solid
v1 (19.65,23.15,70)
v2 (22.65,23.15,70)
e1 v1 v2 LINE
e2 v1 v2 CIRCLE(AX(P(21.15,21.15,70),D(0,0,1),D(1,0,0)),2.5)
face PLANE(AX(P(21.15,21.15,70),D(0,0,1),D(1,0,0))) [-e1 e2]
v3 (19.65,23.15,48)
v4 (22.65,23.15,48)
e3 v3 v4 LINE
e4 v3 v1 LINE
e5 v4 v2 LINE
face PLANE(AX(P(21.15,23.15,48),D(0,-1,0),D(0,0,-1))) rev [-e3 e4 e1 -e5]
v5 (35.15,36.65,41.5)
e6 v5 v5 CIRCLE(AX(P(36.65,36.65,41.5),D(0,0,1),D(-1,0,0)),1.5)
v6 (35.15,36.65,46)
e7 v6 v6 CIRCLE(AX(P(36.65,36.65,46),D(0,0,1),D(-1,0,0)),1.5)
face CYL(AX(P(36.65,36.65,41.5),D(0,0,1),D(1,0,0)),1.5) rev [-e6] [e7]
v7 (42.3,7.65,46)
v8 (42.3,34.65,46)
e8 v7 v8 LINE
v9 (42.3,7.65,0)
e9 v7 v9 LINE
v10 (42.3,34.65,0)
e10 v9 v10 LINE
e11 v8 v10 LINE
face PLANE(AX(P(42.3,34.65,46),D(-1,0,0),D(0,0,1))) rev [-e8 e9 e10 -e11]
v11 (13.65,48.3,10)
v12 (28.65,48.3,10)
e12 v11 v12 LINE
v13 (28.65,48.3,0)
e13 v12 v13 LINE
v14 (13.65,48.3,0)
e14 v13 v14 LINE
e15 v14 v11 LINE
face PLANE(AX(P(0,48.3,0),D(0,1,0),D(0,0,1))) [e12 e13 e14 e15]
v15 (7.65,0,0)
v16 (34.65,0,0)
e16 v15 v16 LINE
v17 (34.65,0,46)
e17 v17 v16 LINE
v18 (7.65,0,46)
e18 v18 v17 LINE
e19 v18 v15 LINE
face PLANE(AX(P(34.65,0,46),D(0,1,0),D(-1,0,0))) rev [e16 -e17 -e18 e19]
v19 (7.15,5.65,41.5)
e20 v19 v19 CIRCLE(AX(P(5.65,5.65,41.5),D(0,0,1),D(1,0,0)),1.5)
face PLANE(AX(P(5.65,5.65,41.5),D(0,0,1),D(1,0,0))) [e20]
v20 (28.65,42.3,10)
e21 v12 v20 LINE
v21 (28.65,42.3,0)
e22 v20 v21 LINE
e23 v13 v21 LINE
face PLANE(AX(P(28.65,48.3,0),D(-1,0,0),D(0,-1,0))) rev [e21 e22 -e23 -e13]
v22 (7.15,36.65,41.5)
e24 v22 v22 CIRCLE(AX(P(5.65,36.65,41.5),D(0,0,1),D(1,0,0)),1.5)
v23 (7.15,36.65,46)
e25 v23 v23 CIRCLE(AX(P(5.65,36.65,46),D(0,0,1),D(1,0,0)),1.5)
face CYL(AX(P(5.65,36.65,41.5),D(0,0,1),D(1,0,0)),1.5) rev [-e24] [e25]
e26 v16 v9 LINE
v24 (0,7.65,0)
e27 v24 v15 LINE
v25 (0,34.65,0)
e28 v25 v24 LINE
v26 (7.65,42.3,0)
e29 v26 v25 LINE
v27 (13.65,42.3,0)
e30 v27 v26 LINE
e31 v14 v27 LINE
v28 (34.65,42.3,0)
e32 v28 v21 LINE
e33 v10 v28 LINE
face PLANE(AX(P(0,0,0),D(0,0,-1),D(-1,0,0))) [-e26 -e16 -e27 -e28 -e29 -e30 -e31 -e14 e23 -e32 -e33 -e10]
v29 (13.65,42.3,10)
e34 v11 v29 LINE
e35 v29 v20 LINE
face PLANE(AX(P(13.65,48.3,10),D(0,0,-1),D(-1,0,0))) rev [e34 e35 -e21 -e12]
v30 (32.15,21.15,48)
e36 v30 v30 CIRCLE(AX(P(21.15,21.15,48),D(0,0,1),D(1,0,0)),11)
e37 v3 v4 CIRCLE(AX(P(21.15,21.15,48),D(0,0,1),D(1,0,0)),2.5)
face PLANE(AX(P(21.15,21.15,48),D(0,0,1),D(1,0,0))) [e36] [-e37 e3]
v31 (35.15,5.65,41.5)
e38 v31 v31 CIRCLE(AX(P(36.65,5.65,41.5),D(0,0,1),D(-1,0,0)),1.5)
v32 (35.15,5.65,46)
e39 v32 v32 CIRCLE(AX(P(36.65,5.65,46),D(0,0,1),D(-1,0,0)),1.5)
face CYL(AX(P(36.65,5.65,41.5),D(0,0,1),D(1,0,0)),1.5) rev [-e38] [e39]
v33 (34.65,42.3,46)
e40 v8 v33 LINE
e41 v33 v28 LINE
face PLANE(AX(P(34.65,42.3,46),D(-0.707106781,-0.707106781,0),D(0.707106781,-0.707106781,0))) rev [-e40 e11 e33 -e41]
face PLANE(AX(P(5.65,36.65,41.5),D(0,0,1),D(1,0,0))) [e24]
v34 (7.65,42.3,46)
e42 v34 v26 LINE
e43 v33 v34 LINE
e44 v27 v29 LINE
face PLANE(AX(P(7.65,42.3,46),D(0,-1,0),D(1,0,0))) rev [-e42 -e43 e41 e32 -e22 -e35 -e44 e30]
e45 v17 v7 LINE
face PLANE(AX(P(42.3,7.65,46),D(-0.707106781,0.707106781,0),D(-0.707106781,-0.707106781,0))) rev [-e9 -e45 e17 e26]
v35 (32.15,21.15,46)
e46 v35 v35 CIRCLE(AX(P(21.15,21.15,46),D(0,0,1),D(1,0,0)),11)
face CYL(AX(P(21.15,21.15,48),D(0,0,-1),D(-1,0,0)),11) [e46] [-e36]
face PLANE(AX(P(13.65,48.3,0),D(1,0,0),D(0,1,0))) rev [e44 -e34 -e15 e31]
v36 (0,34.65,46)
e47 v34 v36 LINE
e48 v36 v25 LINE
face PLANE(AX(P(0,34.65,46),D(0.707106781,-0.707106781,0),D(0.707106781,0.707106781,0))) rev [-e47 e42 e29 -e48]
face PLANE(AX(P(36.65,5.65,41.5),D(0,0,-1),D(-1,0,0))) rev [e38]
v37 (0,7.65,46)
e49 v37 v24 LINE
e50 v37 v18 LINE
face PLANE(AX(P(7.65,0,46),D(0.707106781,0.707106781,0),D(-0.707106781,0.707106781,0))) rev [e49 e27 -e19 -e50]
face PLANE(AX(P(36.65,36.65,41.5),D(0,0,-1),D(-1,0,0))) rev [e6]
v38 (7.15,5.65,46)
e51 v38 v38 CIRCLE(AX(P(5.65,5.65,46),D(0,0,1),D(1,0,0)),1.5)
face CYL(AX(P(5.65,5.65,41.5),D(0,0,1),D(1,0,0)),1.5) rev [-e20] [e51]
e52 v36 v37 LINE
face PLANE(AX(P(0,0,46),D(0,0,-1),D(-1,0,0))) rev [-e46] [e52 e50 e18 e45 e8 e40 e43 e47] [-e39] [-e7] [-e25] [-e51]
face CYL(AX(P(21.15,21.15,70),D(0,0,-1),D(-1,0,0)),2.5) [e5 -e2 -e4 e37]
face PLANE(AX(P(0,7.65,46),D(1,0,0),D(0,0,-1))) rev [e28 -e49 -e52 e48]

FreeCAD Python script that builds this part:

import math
import FreeCAD as App
import Part
import Sketcher

doc = App.newDocument("Part")
body = doc.addObject("PartDesign::Body", "Body")

sketch1 = doc.addObject("Sketcher::SketchObject", "Sketch")
body.addObject(sketch1)
sketch1.AttachmentSupport = (doc.XY_Plane, [""])
sketch1.MapMode = "FlatFace"
sketch1.addGeometry([
    Part.LineSegment(App.Vector(0, 8, 0), App.Vector(8, 0, 0)),
    Part.LineSegment(App.Vector(8, 0, 0), App.Vector(35, 0, 0)),
    Part.LineSegment(App.Vector(35, 0, 0), App.Vector(42, 8, 0)),
    Part.LineSegment(App.Vector(42, 8, 0), App.Vector(42, 35, 0)),
    Part.LineSegment(App.Vector(42, 35, 0), App.Vector(35, 42, 0)),
    Part.LineSegment(App.Vector(35, 42, 0), App.Vector(8, 42, 0)),
    Part.LineSegment(App.Vector(8, 42, 0), App.Vector(0, 35, 0)),
    Part.LineSegment(App.Vector(0, 35, 0), App.Vector(0, 8, 0)),
], False)
sketch1.addConstraint([
    Sketcher.Constraint("Coincident", 0, 2, 1, 1),
    Sketcher.Constraint("Coincident", 1, 2, 2, 1),
    Sketcher.Constraint("Coincident", 2, 2, 3, 1),
    Sketcher.Constraint("Coincident", 3, 2, 4, 1),
    Sketcher.Constraint("Coincident", 4, 2, 5, 1),
    Sketcher.Constraint("Coincident", 5, 2, 6, 1),
    Sketcher.Constraint("Coincident", 6, 2, 7, 1),
    Sketcher.Constraint("Coincident", 7, 2, 0, 1),
    Sketcher.Constraint("Horizontal", 1),
    Sketcher.Constraint("Vertical", 3),
    Sketcher.Constraint("Horizontal", 5),
    Sketcher.Constraint("Vertical", 7),
    Sketcher.Constraint("PointOnObject", 0, 2, -1),
    Sketcher.Constraint("PointOnObject", 6, 2, -2),
    Sketcher.Constraint("Perpendicular", 0, 2),
    Sketcher.Constraint("Perpendicular", 2, 4),
    Sketcher.Constraint("Perpendicular", 4, 6),
    Sketcher.Constraint("Horizontal", 3, 2, 6, 2),
    Sketcher.Constraint("Horizontal", 2, 2, 7, 2),
    Sketcher.Constraint("Vertical", 1, 2, 4, 2),
    Sketcher.Constraint("Vertical", 0, 2, 5, 2),
    Sketcher.Constraint("Equal", 5, 3),
    Sketcher.Constraint("DistanceX", 1, 1, 1, 2, 27.0),
    Sketcher.Constraint("DistanceX", -1, 1, 2, 2, 42.3),
])
pad1 = doc.addObject("PartDesign::Pad", "Pad")
body.addObject(pad1)
pad1.Profile = sketch1
pad1.Length = 46

sketch2 = doc.addObject("Sketcher::SketchObject", "Sketch001")
body.addObject(sketch2)
sketch2.AttachmentSupport = (doc.XY_Plane, [""])
sketch2.MapMode = "FlatFace"
sketch2.AttachmentOffset = App.Placement(App.Vector(0, 0, 46), App.Rotation())
sketch2.addGeometry(Part.Circle(App.Vector(21, 21, 0), App.Vector(0, 0, 1), 11), False)
sketch2.addConstraint([
    Sketcher.Constraint("Diameter", 0, 22.0),
    Sketcher.Constraint("DistanceX", -1, 1, 0, 3, 21.15),
    Sketcher.Constraint("DistanceY", -1, 1, 0, 3, 21.15),
])
pad2 = doc.addObject("PartDesign::Pad", "Pad001")
body.addObject(pad2)
pad2.Profile = sketch2
pad2.Length = 2

sketch3 = doc.addObject("Sketcher::SketchObject", "Sketch002")
body.addObject(sketch3)
sketch3.AttachmentSupport = (doc.XY_Plane, [""])
sketch3.MapMode = "FlatFace"
sketch3.AttachmentOffset = App.Placement(App.Vector(0, 0, 48), App.Rotation())
sketch3.addGeometry(Part.Circle(App.Vector(21.1, 21.1, 0), App.Vector(0, 0, 1), 2.5), False)
sketch3.addConstraint([
    Sketcher.Constraint("Diameter", 0, 5.0),
    Sketcher.Constraint("DistanceX", -1, 1, 0, 3, 21.15),
    Sketcher.Constraint("DistanceY", -1, 1, 0, 3, 21.15),
])
pad3 = doc.addObject("PartDesign::Pad", "Pad002")
body.addObject(pad3)
pad3.Profile = sketch3
pad3.Length = 22

sketch4 = doc.addObject("Sketcher::SketchObject", "Sketch003")
body.addObject(sketch4)
sketch4.AttachmentSupport = (doc.XY_Plane, [""])
sketch4.MapMode = "FlatFace"
sketch4.AttachmentOffset = App.Placement(App.Vector(0, 0, 48), App.Rotation())
sketch4.addGeometry([
    Part.ArcOfCircle(Part.Circle(App.Vector(21.1, 21.1, 0), App.Vector(0, 0, 1), 2.5), math.radians(53), math.radians(127)),
    Part.LineSegment(App.Vector(19.6, 23.1, 0), App.Vector(22.6, 23.1, 0)),
], False)
sketch4.addConstraint([
    Sketcher.Constraint("Coincident", 0, 1, 1, 2),
    Sketcher.Constraint("Coincident", 1, 1, 0, 2),
    Sketcher.Constraint("Horizontal", 1),
    Sketcher.Constraint("Radius", 0, 2.5),
    Sketcher.Constraint("DistanceX", 1, 1, 1, 2, 3.0),
    Sketcher.Constraint("DistanceX", -1, 1, 0, 3, 21.15),
    Sketcher.Constraint("DistanceY", -1, 1, 0, 3, 21.15),
])
pocket1 = doc.addObject("PartDesign::Pocket", "Pocket")
body.addObject(pocket1)
pocket1.Profile = sketch4
pocket1.Length = 22
pocket1.Reversed = True

sketch5 = doc.addObject("Sketcher::SketchObject", "Sketch004")
body.addObject(sketch5)
sketch5.AttachmentSupport = (doc.XY_Plane, [""])
sketch5.MapMode = "FlatFace"
sketch5.AttachmentOffset = App.Placement(App.Vector(0, 0, 46), App.Rotation())
sketch5.addGeometry([
    Part.Circle(App.Vector(5.7, 5.7, 0), App.Vector(0, 0, 1), 1.5),
    Part.Circle(App.Vector(5.7, 36.6, 0), App.Vector(0, 0, 1), 1.5),
    Part.Circle(App.Vector(36.6, 5.7, 0), App.Vector(0, 0, 1), 1.5),
    Part.Circle(App.Vector(36.6, 36.6, 0), App.Vector(0, 0, 1), 1.5),
], False)
sketch5.addConstraint([
    Sketcher.Constraint("Equal", 0, 1),
    Sketcher.Constraint("Equal", 1, 2),
    Sketcher.Constraint("Equal", 2, 3),
    Sketcher.Constraint("Horizontal", 0, 3, 2, 3),
    Sketcher.Constraint("Horizontal", 1, 3, 3, 3),
    Sketcher.Constraint("Vertical", 0, 3, 1, 3),
    Sketcher.Constraint("Vertical", 2, 3, 3, 3),
    Sketcher.Constraint("Diameter", 0, 3.0),
    Sketcher.Constraint("DistanceY", 0, 3, 1, 3, 31.0),
    Sketcher.Constraint("DistanceX", 0, 3, 2, 3, 31.0),
    Sketcher.Constraint("DistanceX", -1, 1, 0, 3, 5.65),
    Sketcher.Constraint("DistanceY", -1, 1, 0, 3, 5.65),
])
pocket2 = doc.addObject("PartDesign::Pocket", "Pocket001")
body.addObject(pocket2)
pocket2.Profile = sketch5
pocket2.Length = 4.5

sketch6 = doc.addObject("Sketcher::SketchObject", "Sketch005")
body.addObject(sketch6)
sketch6.AttachmentSupport = (doc.XZ_Plane, [""])
sketch6.MapMode = "FlatFace"
sketch6.AttachmentOffset = App.Placement(App.Vector(0, 0, -42.3), App.Rotation())
sketch6.addGeometry([
    Part.LineSegment(App.Vector(14, 0, 0), App.Vector(14, 10, 0)),
    Part.LineSegment(App.Vector(14, 10, 0), App.Vector(29, 10, 0)),
    Part.LineSegment(App.Vector(29, 10, 0), App.Vector(29, 0, 0)),
    Part.LineSegment(App.Vector(29, 0, 0), App.Vector(14, 0, 0)),
], False)
sketch6.addConstraint([
    Sketcher.Constraint("Coincident", 0, 2, 1, 1),
    Sketcher.Constraint("Coincident", 1, 2, 2, 1),
    Sketcher.Constraint("Coincident", 2, 2, 3, 1),
    Sketcher.Constraint("Coincident", 3, 2, 0, 1),
    Sketcher.Constraint("Vertical", 0),
    Sketcher.Constraint("Horizontal", 1),
    Sketcher.Constraint("Vertical", 2),
    Sketcher.Constraint("Horizontal", 3),
    Sketcher.Constraint("PointOnObject", 2, 2, -1),
    Sketcher.Constraint("DistanceX", 1, 1, 1, 2, 15.0),
    Sketcher.Constraint("DistanceY", 0, 1, 0, 2, 10.0),
    Sketcher.Constraint("DistanceX", -1, 1, 0, 2, 13.65),
])
pad4 = doc.addObject("PartDesign::Pad", "Pad003")
body.addObject(pad4)
pad4.Profile = sketch6
pad4.Length = 6
pad4.Reversed = True

doc.recompute()
